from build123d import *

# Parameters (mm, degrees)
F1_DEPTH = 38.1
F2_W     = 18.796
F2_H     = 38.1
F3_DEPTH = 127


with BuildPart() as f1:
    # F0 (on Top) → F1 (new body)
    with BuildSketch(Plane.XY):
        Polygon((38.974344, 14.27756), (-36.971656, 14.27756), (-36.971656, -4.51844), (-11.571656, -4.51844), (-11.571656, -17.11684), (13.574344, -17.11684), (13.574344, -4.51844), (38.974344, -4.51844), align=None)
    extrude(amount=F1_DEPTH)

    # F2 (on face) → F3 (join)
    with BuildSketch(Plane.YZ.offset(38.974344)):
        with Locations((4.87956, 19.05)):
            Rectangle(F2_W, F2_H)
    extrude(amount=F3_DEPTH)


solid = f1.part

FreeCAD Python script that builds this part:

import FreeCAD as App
import Part
import Sketcher
from FreeCAD import Vector
Q = App.Units.Quantity

doc = App.newDocument("Part")
body = doc.addObject("PartDesign::Body", "Body")

sketch1 = body.newObject("Sketcher::SketchObject", "Sketch")
sketch1.AttachmentSupport = (doc.getObject("XY_Plane"), [""])
sketch1.MapMode = "FlatFace"
sketch1.addGeometry([
    Part.LineSegment(Vector(39, 14, 0), Vector(-37, 14, 0)),
    Part.LineSegment(Vector(-37, 14, 0), Vector(-37, -5, 0)),
    Part.LineSegment(Vector(-37, -5, 0), Vector(-12, -5, 0)),
    Part.LineSegment(Vector(-12, -5, 0), Vector(-12, -17, 0)),
    Part.LineSegment(Vector(-12, -17, 0), Vector(14, -17, 0)),
    Part.LineSegment(Vector(14, -17, 0), Vector(14, -5, 0)),
    Part.LineSegment(Vector(14, -5, 0), Vector(39, -5, 0)),
    Part.LineSegment(Vector(39, -5, 0), Vector(39, 14, 0)),
], False)
sketch1.addConstraint([
    Sketcher.Constraint("Coincident", 0, 2, 1, 1),
    Sketcher.Constraint("Coincident", 1, 2, 2, 1),
    Sketcher.Constraint("Coincident", 2, 2, 3, 1),
    Sketcher.Constraint("Coincident", 3, 2, 4, 1),
    Sketcher.Constraint("Coincident", 4, 2, 5, 1),
    Sketcher.Constraint("Coincident", 5, 2, 6, 1),
    Sketcher.Constraint("Coincident", 6, 2, 7, 1),
    Sketcher.Constraint("Coincident", 7, 2, 0, 1),
    Sketcher.Constraint("Horizontal", 0),
    Sketcher.Constraint("Vertical", 1),
    Sketcher.Constraint("Horizontal", 2),
    Sketcher.Constraint("Vertical", 3),
    Sketcher.Constraint("Horizontal", 4),
    Sketcher.Constraint("Vertical", 5),
    Sketcher.Constraint("Horizontal", 6),
    Sketcher.Constraint("Vertical", 7),
    Sketcher.Constraint("Horizontal", 2, 2, 5, 2),
    Sketcher.Constraint("Equal", 2, 6),
    Sketcher.Constraint("DistanceX", 2, 1, 2, 2, Q("1 in")),
    Sketcher.Constraint("DistanceX", 0, 2, 0, 1, Q("2.99 in")),
    Sketcher.Constraint("DistanceY", 1, 2, 1, 1, Q("0.74 in")),
    Sketcher.Constraint("DistanceY", 3, 2, 3, 1, Q("0.496 in")),
    Sketcher.Constraint("DistanceY", -1, 1, 0, 2, Q("14.27756 mm")),
    Sketcher.Constraint("DistanceX", 0, 2, -1, 1, Q("36.971656 mm")),
])
pad1 = body.newObject("PartDesign::Pad", "Pad")
pad1.Profile = sketch1
pad1.Length = Q("1.5 in")

sketch2 = body.newObject("Sketcher::SketchObject", "Sketch001")
sketch2.AttachmentSupport = (doc.getObject("YZ_Plane"), [""])
sketch2.MapMode = "FlatFace"
sketch2.AttachmentOffset = App.Placement(Vector(0, 0, 38.974344), App.Rotation())
sketch2.addGeometry([
    Part.LineSegment(Vector(-5, 38, 0), Vector(-5, 0, 0)),
    Part.LineSegment(Vector(-5, 0, 0), Vector(14, 0, 0)),
    Part.LineSegment(Vector(14, 0, 0), Vector(14, 38, 0)),
    Part.LineSegment(Vector(14, 38, 0), Vector(-5, 38, 0)),
], False)
sketch2.addConstraint([
    Sketcher.Constraint("Coincident", 0, 2, 1, 1),
    Sketcher.Constraint("Coincident", 1, 2, 2, 1),
    Sketcher.Constraint("Coincident", 2, 2, 3, 1),
    Sketcher.Constraint("Coincident", 3, 2, 0, 1),
    Sketcher.Constraint("Vertical", 0),
    Sketcher.Constraint("Horizontal", 1),
    Sketcher.Constraint("Vertical", 2),
    Sketcher.Constraint("Horizontal", 3),
    Sketcher.Constraint("PointOnObject", 0, 2, -1),
    Sketcher.Constraint("DistanceY", 0, 2, 0, 1, Q("1.5 in")),
    Sketcher.Constraint("DistanceX", 1, 1, 1, 2, Q("0.74 in")),
    Sketcher.Constraint("DistanceX", 0, 2, -1, 1, Q("4.51844 mm")),
])
pad2 = body.newObject("PartDesign::Pad", "Pad001")
pad2.Profile = sketch2
pad2.Length = Q("5 in")

doc.recompute()
